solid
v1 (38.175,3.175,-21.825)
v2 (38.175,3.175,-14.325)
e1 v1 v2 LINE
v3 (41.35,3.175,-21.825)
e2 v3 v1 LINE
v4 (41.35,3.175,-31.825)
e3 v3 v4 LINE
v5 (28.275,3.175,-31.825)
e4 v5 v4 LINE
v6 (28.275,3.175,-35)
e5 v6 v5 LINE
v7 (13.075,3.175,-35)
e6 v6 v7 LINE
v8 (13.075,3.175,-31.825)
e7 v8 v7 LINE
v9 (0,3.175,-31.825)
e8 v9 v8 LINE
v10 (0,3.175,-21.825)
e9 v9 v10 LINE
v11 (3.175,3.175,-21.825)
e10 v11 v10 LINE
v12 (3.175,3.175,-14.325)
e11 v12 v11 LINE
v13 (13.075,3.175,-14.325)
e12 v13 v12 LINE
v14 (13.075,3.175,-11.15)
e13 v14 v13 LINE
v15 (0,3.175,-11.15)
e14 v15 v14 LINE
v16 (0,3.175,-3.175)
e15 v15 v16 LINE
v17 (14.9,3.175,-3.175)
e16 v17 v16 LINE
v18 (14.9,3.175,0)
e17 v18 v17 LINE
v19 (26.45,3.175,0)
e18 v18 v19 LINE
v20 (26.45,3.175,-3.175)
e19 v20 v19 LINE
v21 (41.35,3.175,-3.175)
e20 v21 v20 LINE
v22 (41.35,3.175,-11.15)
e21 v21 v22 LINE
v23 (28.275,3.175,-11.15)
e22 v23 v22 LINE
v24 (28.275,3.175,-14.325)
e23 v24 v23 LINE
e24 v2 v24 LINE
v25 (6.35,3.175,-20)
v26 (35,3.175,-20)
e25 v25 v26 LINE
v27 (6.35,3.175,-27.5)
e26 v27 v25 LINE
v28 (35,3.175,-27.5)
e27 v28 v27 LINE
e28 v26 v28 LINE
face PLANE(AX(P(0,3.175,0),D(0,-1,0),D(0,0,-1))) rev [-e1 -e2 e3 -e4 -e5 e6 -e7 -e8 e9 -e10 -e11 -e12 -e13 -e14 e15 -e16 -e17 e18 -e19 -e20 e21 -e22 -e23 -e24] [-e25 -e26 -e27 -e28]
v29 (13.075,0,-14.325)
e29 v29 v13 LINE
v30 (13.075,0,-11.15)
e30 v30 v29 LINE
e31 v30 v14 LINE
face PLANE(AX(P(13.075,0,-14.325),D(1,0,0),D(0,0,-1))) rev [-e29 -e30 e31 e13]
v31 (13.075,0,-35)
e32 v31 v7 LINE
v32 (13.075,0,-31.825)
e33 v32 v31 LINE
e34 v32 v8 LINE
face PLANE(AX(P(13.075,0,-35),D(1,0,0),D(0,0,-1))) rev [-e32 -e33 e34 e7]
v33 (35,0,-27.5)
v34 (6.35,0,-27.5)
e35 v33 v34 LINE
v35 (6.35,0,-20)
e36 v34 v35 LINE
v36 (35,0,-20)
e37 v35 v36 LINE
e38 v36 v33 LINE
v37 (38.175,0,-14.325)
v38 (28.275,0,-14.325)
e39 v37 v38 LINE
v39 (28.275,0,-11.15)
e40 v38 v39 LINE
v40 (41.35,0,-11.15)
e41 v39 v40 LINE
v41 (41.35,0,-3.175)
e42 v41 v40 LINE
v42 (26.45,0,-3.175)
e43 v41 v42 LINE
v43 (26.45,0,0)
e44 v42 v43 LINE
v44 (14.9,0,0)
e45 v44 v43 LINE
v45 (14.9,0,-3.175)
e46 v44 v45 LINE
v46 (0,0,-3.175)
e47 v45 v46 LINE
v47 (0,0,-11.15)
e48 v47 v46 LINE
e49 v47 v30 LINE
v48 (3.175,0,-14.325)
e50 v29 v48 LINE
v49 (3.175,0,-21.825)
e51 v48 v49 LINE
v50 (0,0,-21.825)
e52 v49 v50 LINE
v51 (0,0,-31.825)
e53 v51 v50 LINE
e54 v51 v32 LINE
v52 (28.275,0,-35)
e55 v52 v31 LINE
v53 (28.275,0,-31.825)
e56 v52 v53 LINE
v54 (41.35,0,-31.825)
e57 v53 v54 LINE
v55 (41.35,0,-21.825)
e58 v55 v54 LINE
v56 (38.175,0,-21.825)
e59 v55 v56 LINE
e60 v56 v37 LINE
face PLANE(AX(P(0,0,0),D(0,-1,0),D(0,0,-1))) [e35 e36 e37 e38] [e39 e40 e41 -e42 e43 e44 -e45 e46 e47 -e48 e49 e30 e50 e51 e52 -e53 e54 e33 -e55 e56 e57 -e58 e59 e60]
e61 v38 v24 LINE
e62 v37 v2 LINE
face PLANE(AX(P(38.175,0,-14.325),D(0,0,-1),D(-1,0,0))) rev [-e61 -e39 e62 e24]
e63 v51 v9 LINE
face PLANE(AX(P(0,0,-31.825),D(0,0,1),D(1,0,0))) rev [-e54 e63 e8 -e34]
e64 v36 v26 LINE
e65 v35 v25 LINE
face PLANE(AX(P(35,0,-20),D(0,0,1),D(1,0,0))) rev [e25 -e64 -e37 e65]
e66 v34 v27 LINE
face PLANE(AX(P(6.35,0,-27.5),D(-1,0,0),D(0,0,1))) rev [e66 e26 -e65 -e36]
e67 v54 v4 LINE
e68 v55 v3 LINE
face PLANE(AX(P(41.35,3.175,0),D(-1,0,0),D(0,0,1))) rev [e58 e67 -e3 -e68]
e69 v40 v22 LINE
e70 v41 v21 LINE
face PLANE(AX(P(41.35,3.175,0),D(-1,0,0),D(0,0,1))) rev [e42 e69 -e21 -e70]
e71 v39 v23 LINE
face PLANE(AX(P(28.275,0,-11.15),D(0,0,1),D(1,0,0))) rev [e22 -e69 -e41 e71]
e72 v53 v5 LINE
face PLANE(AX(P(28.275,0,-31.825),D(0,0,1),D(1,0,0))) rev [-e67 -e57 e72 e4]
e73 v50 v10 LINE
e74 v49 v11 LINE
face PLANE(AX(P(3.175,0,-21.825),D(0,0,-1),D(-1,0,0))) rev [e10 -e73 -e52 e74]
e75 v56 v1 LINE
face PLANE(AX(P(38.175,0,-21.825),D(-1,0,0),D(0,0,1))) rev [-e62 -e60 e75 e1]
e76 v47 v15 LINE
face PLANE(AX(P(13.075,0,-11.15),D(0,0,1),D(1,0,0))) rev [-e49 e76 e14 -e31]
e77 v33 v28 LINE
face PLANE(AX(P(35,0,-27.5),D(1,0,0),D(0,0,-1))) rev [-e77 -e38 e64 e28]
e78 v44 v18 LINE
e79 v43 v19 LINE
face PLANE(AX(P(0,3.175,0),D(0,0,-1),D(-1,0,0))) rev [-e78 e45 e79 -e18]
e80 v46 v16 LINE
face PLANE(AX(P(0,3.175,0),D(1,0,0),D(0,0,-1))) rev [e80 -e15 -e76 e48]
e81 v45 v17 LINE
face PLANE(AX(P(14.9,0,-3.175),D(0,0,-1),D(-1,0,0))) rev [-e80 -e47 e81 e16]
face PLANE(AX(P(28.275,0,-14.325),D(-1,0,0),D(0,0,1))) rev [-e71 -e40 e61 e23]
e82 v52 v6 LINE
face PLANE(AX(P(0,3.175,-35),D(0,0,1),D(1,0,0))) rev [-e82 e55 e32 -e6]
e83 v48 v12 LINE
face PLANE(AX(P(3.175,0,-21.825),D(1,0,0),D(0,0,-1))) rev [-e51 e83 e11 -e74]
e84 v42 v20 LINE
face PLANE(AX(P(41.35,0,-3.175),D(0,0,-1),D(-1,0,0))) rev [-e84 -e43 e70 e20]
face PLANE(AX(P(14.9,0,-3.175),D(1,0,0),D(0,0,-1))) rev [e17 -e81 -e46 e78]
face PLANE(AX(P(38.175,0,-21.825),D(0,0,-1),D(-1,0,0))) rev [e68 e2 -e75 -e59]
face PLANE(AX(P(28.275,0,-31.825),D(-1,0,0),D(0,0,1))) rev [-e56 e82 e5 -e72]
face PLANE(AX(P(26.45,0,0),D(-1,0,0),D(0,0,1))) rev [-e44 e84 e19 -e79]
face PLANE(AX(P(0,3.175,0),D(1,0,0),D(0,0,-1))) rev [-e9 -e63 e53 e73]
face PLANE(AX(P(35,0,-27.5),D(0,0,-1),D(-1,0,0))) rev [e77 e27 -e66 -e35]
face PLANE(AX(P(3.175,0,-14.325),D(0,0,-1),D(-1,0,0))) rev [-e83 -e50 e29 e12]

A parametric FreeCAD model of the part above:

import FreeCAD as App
import Part
import Sketcher
Q = App.Units.Quantity

doc = App.newDocument("Part")
body = doc.addObject("PartDesign::Body", "Body")

# Sketch on XZ plane
sketch1 = body.newObject("Sketcher::SketchObject", "Sketch")
sketch1.AttachmentSupport = (doc.getObject("XZ_Plane"), [""])
sketch1.MapMode = "FlatFace"
sketch1.addGeometry(Part.LineSegment(App.Vector(0, -35, 0), App.Vector(0, 0, 0)), False)
sketch1.addGeometry(Part.LineSegment(App.Vector(0, 0, 0), App.Vector(41, 0, 0)), False)
sketch1.addGeometry(Part.LineSegment(App.Vector(41, 0, 0), App.Vector(41, -35, 0)), False)
sketch1.addGeometry(Part.LineSegment(App.Vector(41, -35, 0), App.Vector(0, -35, 0)), False)
sketch1.addConstraint(Sketcher.Constraint("Coincident", 0, 2, 1, 1))
sketch1.addConstraint(Sketcher.Constraint("Coincident", 1, 2, 2, 1))
sketch1.addConstraint(Sketcher.Constraint("Coincident", 2, 2, 3, 1))
sketch1.addConstraint(Sketcher.Constraint("Coincident", 3, 2, 0, 1))
sketch1.addConstraint(Sketcher.Constraint("Vertical", 0))
sketch1.addConstraint(Sketcher.Constraint("Horizontal", 1))
sketch1.addConstraint(Sketcher.Constraint("Vertical", 2))
sketch1.addConstraint(Sketcher.Constraint("Horizontal", 3))
sketch1.addConstraint(Sketcher.Constraint("Coincident", 0, 2, -1, 1))
sketch1.addConstraint(Sketcher.Constraint("DistanceY", 0, 1, 0, 2, Q("35 mm")))
sketch1.addConstraint(Sketcher.Constraint("DistanceX", 1, 1, 1, 2, Q("41.35 mm")))
pad1 = body.newObject("PartDesign::Pad", "Pad")
pad1.Profile = sketch1
pad1.Length = 3.175
pad1.Reversed = True

# Sketch on XZ plane
sketch2 = body.newObject("Sketcher::SketchObject", "Sketch001")
sketch2.AttachmentSupport = (doc.getObject("XZ_Plane"), [""])
sketch2.MapMode = "FlatFace"
sketch2.AttachmentOffset = App.Placement(App.Vector(0, 0, -3.175), App.Rotation())
sketch2.addGeometry(Part.LineSegment(App.Vector(6.3, -27.5, 0), App.Vector(6.3, -20, 0)), False)
sketch2.addGeometry(Part.LineSegment(App.Vector(6.3, -20, 0), App.Vector(35, -20, 0)), False)
sketch2.addGeometry(Part.LineSegment(App.Vector(35, -20, 0), App.Vector(35, -27.5, 0)), False)
sketch2.addGeometry(Part.LineSegment(App.Vector(35, -27.5, 0), App.Vector(6.3, -27.5, 0)), False)
sketch2.addGeometry(Part.LineSegment(App.Vector(0, -35, 0), App.Vector(0, -31.8, 0)), False)
sketch2.addGeometry(Part.LineSegment(App.Vector(0, -31.8, 0), App.Vector(13.1, -31.8, 0)), False)
sketch2.addGeometry(Part.LineSegment(App.Vector(13.1, -31.8, 0), App.Vector(13.1, -35, 0)), False)
sketch2.addGeometry(Part.LineSegment(App.Vector(13.1, -35, 0), App.Vector(0, -35, 0)), False)
sketch2.addGeometry(Part.LineSegment(App.Vector(28.3, -35, 0), App.Vector(28.3, -31.8, 0)), False)
sketch2.addGeometry(Part.LineSegment(App.Vector(28.3, -31.8, 0), App.Vector(41.4, -31.8, 0)), False)
sketch2.addGeometry(Part.LineSegment(App.Vector(41.4, -31.8, 0), App.Vector(41.4, -35, 0)), False)
sketch2.addGeometry(Part.LineSegment(App.Vector(41.4, -35, 0), App.Vector(28.3, -35, 0)), False)
sketch2.addGeometry(Part.LineSegment(App.Vector(41.4, -21.8, 0), App.Vector(38.2, -21.8, 0)), False)
sketch2.addGeometry(Part.LineSegment(App.Vector(38.2, -21.8, 0), App.Vector(38.2, -14.3, 0)), False)
sketch2.addGeometry(Part.LineSegment(App.Vector(38.2, -14.3, 0), App.Vector(28.3, -14.3, 0)), False)
sketch2.addGeometry(Part.LineSegment(App.Vector(28.3, -14.3, 0), App.Vector(28.3, -11.2, 0)), False)
sketch2.addGeometry(Part.LineSegment(App.Vector(28.3, -11.2, 0), App.Vector(41.4, -11.2, 0)), False)
sketch2.addGeometry(Part.LineSegment(App.Vector(41.4, -11.2, 0), App.Vector(41.4, -21.8, 0)), False)
sketch2.addGeometry(Part.LineSegment(App.Vector(3.2, -14.3, 0), App.Vector(3.2, -21.8, 0)), False)
sketch2.addGeometry(Part.LineSegment(App.Vector(3.2, -21.8, 0), App.Vector(0, -21.8, 0)), False)
sketch2.addGeometry(Part.LineSegment(App.Vector(0, -21.8, 0), App.Vector(0, -11.2, 0)), False)
sketch2.addGeometry(Part.LineSegment(App.Vector(0, -11.2, 0), App.Vector(13.1, -11.2, 0)), False)
sketch2.addGeometry(Part.LineSegment(App.Vector(13.1, -11.2, 0), App.Vector(13.1, -14.3, 0)), False)
sketch2.addGeometry(Part.LineSegment(App.Vector(13.1, -14.3, 0), App.Vector(3.2, -14.3, 0)), False)
sketch2.addGeometry(Part.LineSegment(App.Vector(26.4, -3.2, 0), App.Vector(26.4, 0, 0)), False)
sketch2.addGeometry(Part.LineSegment(App.Vector(26.4, 0, 0), App.Vector(41.4, 0, 0)), False)
sketch2.addGeometry(Part.LineSegment(App.Vector(41.4, 0, 0), App.Vector(41.4, -3.2, 0)), False)
sketch2.addGeometry(Part.LineSegment(App.Vector(41.4, -3.2, 0), App.Vector(26.4, -3.2, 0)), False)
sketch2.addGeometry(Part.LineSegment(App.Vector(0, -3.2, 0), App.Vector(0, 0, 0)), False)
sketch2.addGeometry(Part.LineSegment(App.Vector(0, 0, 0), App.Vector(14.9, 0, 0)), False)
sketch2.addGeometry(Part.LineSegment(App.Vector(14.9, 0, 0), App.Vector(14.9, -3.2, 0)), False)
sketch2.addGeometry(Part.LineSegment(App.Vector(14.9, -3.2, 0), App.Vector(0, -3.2, 0)), False)
sketch2.addConstraint(Sketcher.Constraint("Coincident", 0, 2, 1, 1))
sketch2.addConstraint(Sketcher.Constraint("Coincident", 1, 2, 2, 1))
sketch2.addConstraint(Sketcher.Constraint("Coincident", 2, 2, 3, 1))
sketch2.addConstraint(Sketcher.Constraint("Coincident", 3, 2, 0, 1))
sketch2.addConstraint(Sketcher.Constraint("Coincident", 4, 2, 5, 1))
sketch2.addConstraint(Sketcher.Constraint("Coincident", 5, 2, 6, 1))
sketch2.addConstraint(Sketcher.Constraint("Coincident", 6, 2, 7, 1))
sketch2.addConstraint(Sketcher.Constraint("Coincident", 7, 2, 4, 1))
sketch2.addConstraint(Sketcher.Constraint("Coincident", 8, 2, 9, 1))
sketch2.addConstraint(Sketcher.Constraint("Coincident", 9, 2, 10, 1))
sketch2.addConstraint(Sketcher.Constraint("Coincident", 10, 2, 11, 1))
sketch2.addConstraint(Sketcher.Constraint("Coincident", 11, 2, 8, 1))
sketch2.addConstraint(Sketcher.Constraint("Coincident", 12, 2, 13, 1))
sketch2.addConstraint(Sketcher.Constraint("Coincident", 13, 2, 14, 1))
sketch2.addConstraint(Sketcher.Constraint("Coincident", 14, 2, 15, 1))
sketch2.addConstraint(Sketcher.Constraint("Coincident", 15, 2, 16, 1))
sketch2.addConstraint(Sketcher.Constraint("Coincident", 16, 2, 17, 1))
sketch2.addConstraint(Sketcher.Constraint("Coincident", 17, 2, 12, 1))
sketch2.addConstraint(Sketcher.Constraint("Coincident", 18, 2, 19, 1))
sketch2.addConstraint(Sketcher.Constraint("Coincident", 19, 2, 20, 1))
sketch2.addConstraint(Sketcher.Constraint("Coincident", 20, 2, 21, 1))
sketch2.addConstraint(Sketcher.Constraint("Coincident", 21, 2, 22, 1))
sketch2.addConstraint(Sketcher.Constraint("Coincident", 22, 2, 23, 1))
sketch2.addConstraint(Sketcher.Constraint("Coincident", 23, 2, 18, 1))
sketch2.addConstraint(Sketcher.Constraint("Coincident", 24, 2, 25, 1))
sketch2.addConstraint(Sketcher.Constraint("Coincident", 25, 2, 26, 1))
sketch2.addConstraint(Sketcher.Constraint("Coincident", 26, 2, 27, 1))
sketch2.addConstraint(Sketcher.Constraint("Coincident", 27, 2, 24, 1))
sketch2.addConstraint(Sketcher.Constraint("Coincident", 28, 2, 29, 1))
sketch2.addConstraint(Sketcher.Constraint("Coincident", 29, 2, 30, 1))
sketch2.addConstraint(Sketcher.Constraint("Coincident", 30, 2, 31, 1))
sketch2.addConstraint(Sketcher.Constraint("Coincident", 31, 2, 28, 1))
sketch2.addConstraint(Sketcher.Constraint("Vertical", 0))
sketch2.addConstraint(Sketcher.Constraint("Horizontal", 1))
sketch2.addConstraint(Sketcher.Constraint("Vertical", 2))
sketch2.addConstraint(Sketcher.Constraint("Horizontal", 3))
sketch2.addConstraint(Sketcher.Constraint("Vertical", 4))
sketch2.addConstraint(Sketcher.Constraint("Horizontal", 5))
sketch2.addConstraint(Sketcher.Constraint("Vertical", 6))
sketch2.addConstraint(Sketcher.Constraint("Horizontal", 7))
sketch2.addConstraint(Sketcher.Constraint("Vertical", 8))
sketch2.addConstraint(Sketcher.Constraint("Horizontal", 9))
sketch2.addConstraint(Sketcher.Constraint("Vertical", 10))
sketch2.addConstraint(Sketcher.Constraint("Horizontal", 11))
sketch2.addConstraint(Sketcher.Constraint("Horizontal", 12))
sketch2.addConstraint(Sketcher.Constraint("Vertical", 13))
sketch2.addConstraint(Sketcher.Constraint("Horizontal", 14))
sketch2.addConstraint(Sketcher.Constraint("Vertical", 15))
sketch2.addConstraint(Sketcher.Constraint("Horizontal", 16))
sketch2.addConstraint(Sketcher.Constraint("Vertical", 17))
sketch2.addConstraint(Sketcher.Constraint("Vertical", 18))
sketch2.addConstraint(Sketcher.Constraint("Horizontal", 19))
sketch2.addConstraint(Sketcher.Constraint("Vertical", 20))
sketch2.addConstraint(Sketcher.Constraint("Horizontal", 21))
sketch2.addConstraint(Sketcher.Constraint("Vertical", 22))
sketch2.addConstraint(Sketcher.Constraint("Horizontal", 23))
sketch2.addConstraint(Sketcher.Constraint("Vertical", 24))
sketch2.addConstraint(Sketcher.Constraint("Horizontal", 25))
sketch2.addConstraint(Sketcher.Constraint("Vertical", 26))
sketch2.addConstraint(Sketcher.Constraint("Horizontal", 27))
sketch2.addConstraint(Sketcher.Constraint("Vertical", 28))
sketch2.addConstraint(Sketcher.Constraint("Horizontal", 29))
sketch2.addConstraint(Sketcher.Constraint("Vertical", 30))
sketch2.addConstraint(Sketcher.Constraint("Horizontal", 31))
sketch2.addConstraint(Sketcher.Constraint("Coincident", 28, 2, -1, 1))
sketch2.addConstraint(Sketcher.Constraint("PointOnObject", 4, 2, -2))
sketch2.addConstraint(Sketcher.Constraint("PointOnObject", 19, 2, -2))
sketch2.addConstraint(Sketcher.Constraint("PointOnObject", 24, 2, -1))
sketch2.addConstraint(Sketcher.Constraint("Horizontal", 5, 2, 8, 2))
sketch2.addConstraint(Sketcher.Constraint("Horizontal", 7, 2, 10, 2))
sketch2.addConstraint(Sketcher.Constraint("Horizontal", 17, 2, 18, 2))
sketch2.addConstraint(Sketcher.Constraint("Horizontal", 16, 2, 20, 2))
sketch2.addConstraint(Sketcher.Constraint("Horizontal", 14, 2, 22, 2))
sketch2.addConstraint(Sketcher.Constraint("Horizontal", 27, 2, 30, 2))
sketch2.addConstraint(Sketcher.Constraint("Vertical", 11, 2, 14, 2))
sketch2.addConstraint(Sketcher.Constraint("Vertical", 10, 2, 16, 2))
sketch2.addConstraint(Sketcher.Constraint("Vertical", 6, 2, 21, 2))
sketch2.addConstraint(Sketcher.Constraint("Vertical", 17, 2, 25, 2))
sketch2.addConstraint(Sketcher.Constraint("Equal", 7, 9))
sketch2.addConstraint(Sketcher.Constraint("Equal", 12, 19))
sketch2.addConstraint(Sketcher.Constraint("Equal", 27, 29))
sketch2.addConstraint(Sketcher.Constraint("Equal", 19, 4))
sketch2.addConstraint(Sketcher.Constraint("Equal", 2, 13))
sketch2.addConstraint(Sketcher.Constraint("Equal", 10, 15))
sketch2.addConstraint(Sketcher.Constraint("Equal", 22, 24))
sketch2.addConstraint(Sketcher.Constraint("DistanceX", 14, 2, 14, 1, Q("9.9 mm")))
sketch2.addConstraint(Sketcher.Constraint("DistanceX", 25, 1, 25, 2, Q("14.9 mm")))
sketch2.addConstraint(Sketcher.Constraint("DistanceY", 0, 1, 0, 2, Q("7.5 mm")))
sketch2.addConstraint(Sketcher.Constraint("DistanceY", 0, 2, -1, 1, Q("20 mm")))
sketch2.addConstraint(Sketcher.Constraint("DistanceX", -1, 1, 1, 2, Q("35 mm")))
sketch2.addConstraint(Sketcher.Constraint("DistanceY", 6, 2, -1, 1, Q("35 mm")))
sketch2.addConstraint(Sketcher.Constraint("DistanceY", 9, 2, 12, 2, Q("10 mm")))
sketch2.addConstraint(Sketcher.Constraint("DistanceX", 1, 1, 1, 2, Q("28.65 mm")))
sketch2.addConstraint(Sketcher.Constraint("DistanceX", 5, 2, 8, 2, Q("15.2 mm")))
sketch2.addConstraint(Sketcher.Constraint("DistanceX", 5, 1, 5, 2, Q("13.075 mm")))
pocket1 = body.newObject("PartDesign::Pocket", "Pocket")
pocket1.Profile = sketch2
pocket1.Type = "ThroughAll"
pocket1.Reversed = True

doc.recompute()
